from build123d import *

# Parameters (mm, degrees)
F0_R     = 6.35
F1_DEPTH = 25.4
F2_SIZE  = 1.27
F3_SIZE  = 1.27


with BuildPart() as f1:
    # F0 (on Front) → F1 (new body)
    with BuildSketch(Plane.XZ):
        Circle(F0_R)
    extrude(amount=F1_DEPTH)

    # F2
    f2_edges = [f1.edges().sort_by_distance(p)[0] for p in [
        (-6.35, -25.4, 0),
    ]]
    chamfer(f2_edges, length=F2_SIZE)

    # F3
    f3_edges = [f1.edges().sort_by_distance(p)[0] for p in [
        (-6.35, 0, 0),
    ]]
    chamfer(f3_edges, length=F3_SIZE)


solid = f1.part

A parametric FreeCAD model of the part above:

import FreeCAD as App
import Part
import Sketcher
Q = App.Units.Quantity


def edges_at(feature, points):
    """Names of the edges that pass closest to the given points."""
    edges = feature.Shape.Edges
    near = lambda p: min(range(len(edges)), key=lambda i: edges[i].distToShape(Part.Vertex(*p))[0])
    return sorted({f"Edge{near(p) + 1}" for p in points})

doc = App.newDocument("Part")
body = doc.addObject("PartDesign::Body", "Body")

# Sketch on XZ plane
sketch1 = body.newObject("Sketcher::SketchObject", "Sketch")
sketch1.AttachmentSupport = (doc.getObject("XZ_Plane"), [""])
sketch1.MapMode = "FlatFace"
sketch1.addGeometry(Part.Circle(App.Vector(0, 0, 0), App.Vector(0, 0, 1), 6), False)
sketch1.addConstraint(Sketcher.Constraint("Coincident", 0, 3, -1, 1))
sketch1.addConstraint(Sketcher.Constraint("Diameter", 0, Q("0.5 in")))
pad1 = body.newObject("PartDesign::Pad", "Pad")
pad1.Profile = sketch1
pad1.Length = Q("1 in")
doc.recompute()

chamfer = body.newObject("PartDesign::Chamfer", "Chamfer")
chamfer.Base = (pad1, edges_at(pad1, [(-6.35, -25.4, 0)]))
chamfer.Size = Q("0.05 in")
doc.recompute()

chamfer2 = body.newObject("PartDesign::Chamfer", "Chamfer001")
chamfer2.Base = (chamfer, edges_at(chamfer, [(-6.35, 0, 0)]))
chamfer2.Size = Q("0.05 in")

doc.recompute()
